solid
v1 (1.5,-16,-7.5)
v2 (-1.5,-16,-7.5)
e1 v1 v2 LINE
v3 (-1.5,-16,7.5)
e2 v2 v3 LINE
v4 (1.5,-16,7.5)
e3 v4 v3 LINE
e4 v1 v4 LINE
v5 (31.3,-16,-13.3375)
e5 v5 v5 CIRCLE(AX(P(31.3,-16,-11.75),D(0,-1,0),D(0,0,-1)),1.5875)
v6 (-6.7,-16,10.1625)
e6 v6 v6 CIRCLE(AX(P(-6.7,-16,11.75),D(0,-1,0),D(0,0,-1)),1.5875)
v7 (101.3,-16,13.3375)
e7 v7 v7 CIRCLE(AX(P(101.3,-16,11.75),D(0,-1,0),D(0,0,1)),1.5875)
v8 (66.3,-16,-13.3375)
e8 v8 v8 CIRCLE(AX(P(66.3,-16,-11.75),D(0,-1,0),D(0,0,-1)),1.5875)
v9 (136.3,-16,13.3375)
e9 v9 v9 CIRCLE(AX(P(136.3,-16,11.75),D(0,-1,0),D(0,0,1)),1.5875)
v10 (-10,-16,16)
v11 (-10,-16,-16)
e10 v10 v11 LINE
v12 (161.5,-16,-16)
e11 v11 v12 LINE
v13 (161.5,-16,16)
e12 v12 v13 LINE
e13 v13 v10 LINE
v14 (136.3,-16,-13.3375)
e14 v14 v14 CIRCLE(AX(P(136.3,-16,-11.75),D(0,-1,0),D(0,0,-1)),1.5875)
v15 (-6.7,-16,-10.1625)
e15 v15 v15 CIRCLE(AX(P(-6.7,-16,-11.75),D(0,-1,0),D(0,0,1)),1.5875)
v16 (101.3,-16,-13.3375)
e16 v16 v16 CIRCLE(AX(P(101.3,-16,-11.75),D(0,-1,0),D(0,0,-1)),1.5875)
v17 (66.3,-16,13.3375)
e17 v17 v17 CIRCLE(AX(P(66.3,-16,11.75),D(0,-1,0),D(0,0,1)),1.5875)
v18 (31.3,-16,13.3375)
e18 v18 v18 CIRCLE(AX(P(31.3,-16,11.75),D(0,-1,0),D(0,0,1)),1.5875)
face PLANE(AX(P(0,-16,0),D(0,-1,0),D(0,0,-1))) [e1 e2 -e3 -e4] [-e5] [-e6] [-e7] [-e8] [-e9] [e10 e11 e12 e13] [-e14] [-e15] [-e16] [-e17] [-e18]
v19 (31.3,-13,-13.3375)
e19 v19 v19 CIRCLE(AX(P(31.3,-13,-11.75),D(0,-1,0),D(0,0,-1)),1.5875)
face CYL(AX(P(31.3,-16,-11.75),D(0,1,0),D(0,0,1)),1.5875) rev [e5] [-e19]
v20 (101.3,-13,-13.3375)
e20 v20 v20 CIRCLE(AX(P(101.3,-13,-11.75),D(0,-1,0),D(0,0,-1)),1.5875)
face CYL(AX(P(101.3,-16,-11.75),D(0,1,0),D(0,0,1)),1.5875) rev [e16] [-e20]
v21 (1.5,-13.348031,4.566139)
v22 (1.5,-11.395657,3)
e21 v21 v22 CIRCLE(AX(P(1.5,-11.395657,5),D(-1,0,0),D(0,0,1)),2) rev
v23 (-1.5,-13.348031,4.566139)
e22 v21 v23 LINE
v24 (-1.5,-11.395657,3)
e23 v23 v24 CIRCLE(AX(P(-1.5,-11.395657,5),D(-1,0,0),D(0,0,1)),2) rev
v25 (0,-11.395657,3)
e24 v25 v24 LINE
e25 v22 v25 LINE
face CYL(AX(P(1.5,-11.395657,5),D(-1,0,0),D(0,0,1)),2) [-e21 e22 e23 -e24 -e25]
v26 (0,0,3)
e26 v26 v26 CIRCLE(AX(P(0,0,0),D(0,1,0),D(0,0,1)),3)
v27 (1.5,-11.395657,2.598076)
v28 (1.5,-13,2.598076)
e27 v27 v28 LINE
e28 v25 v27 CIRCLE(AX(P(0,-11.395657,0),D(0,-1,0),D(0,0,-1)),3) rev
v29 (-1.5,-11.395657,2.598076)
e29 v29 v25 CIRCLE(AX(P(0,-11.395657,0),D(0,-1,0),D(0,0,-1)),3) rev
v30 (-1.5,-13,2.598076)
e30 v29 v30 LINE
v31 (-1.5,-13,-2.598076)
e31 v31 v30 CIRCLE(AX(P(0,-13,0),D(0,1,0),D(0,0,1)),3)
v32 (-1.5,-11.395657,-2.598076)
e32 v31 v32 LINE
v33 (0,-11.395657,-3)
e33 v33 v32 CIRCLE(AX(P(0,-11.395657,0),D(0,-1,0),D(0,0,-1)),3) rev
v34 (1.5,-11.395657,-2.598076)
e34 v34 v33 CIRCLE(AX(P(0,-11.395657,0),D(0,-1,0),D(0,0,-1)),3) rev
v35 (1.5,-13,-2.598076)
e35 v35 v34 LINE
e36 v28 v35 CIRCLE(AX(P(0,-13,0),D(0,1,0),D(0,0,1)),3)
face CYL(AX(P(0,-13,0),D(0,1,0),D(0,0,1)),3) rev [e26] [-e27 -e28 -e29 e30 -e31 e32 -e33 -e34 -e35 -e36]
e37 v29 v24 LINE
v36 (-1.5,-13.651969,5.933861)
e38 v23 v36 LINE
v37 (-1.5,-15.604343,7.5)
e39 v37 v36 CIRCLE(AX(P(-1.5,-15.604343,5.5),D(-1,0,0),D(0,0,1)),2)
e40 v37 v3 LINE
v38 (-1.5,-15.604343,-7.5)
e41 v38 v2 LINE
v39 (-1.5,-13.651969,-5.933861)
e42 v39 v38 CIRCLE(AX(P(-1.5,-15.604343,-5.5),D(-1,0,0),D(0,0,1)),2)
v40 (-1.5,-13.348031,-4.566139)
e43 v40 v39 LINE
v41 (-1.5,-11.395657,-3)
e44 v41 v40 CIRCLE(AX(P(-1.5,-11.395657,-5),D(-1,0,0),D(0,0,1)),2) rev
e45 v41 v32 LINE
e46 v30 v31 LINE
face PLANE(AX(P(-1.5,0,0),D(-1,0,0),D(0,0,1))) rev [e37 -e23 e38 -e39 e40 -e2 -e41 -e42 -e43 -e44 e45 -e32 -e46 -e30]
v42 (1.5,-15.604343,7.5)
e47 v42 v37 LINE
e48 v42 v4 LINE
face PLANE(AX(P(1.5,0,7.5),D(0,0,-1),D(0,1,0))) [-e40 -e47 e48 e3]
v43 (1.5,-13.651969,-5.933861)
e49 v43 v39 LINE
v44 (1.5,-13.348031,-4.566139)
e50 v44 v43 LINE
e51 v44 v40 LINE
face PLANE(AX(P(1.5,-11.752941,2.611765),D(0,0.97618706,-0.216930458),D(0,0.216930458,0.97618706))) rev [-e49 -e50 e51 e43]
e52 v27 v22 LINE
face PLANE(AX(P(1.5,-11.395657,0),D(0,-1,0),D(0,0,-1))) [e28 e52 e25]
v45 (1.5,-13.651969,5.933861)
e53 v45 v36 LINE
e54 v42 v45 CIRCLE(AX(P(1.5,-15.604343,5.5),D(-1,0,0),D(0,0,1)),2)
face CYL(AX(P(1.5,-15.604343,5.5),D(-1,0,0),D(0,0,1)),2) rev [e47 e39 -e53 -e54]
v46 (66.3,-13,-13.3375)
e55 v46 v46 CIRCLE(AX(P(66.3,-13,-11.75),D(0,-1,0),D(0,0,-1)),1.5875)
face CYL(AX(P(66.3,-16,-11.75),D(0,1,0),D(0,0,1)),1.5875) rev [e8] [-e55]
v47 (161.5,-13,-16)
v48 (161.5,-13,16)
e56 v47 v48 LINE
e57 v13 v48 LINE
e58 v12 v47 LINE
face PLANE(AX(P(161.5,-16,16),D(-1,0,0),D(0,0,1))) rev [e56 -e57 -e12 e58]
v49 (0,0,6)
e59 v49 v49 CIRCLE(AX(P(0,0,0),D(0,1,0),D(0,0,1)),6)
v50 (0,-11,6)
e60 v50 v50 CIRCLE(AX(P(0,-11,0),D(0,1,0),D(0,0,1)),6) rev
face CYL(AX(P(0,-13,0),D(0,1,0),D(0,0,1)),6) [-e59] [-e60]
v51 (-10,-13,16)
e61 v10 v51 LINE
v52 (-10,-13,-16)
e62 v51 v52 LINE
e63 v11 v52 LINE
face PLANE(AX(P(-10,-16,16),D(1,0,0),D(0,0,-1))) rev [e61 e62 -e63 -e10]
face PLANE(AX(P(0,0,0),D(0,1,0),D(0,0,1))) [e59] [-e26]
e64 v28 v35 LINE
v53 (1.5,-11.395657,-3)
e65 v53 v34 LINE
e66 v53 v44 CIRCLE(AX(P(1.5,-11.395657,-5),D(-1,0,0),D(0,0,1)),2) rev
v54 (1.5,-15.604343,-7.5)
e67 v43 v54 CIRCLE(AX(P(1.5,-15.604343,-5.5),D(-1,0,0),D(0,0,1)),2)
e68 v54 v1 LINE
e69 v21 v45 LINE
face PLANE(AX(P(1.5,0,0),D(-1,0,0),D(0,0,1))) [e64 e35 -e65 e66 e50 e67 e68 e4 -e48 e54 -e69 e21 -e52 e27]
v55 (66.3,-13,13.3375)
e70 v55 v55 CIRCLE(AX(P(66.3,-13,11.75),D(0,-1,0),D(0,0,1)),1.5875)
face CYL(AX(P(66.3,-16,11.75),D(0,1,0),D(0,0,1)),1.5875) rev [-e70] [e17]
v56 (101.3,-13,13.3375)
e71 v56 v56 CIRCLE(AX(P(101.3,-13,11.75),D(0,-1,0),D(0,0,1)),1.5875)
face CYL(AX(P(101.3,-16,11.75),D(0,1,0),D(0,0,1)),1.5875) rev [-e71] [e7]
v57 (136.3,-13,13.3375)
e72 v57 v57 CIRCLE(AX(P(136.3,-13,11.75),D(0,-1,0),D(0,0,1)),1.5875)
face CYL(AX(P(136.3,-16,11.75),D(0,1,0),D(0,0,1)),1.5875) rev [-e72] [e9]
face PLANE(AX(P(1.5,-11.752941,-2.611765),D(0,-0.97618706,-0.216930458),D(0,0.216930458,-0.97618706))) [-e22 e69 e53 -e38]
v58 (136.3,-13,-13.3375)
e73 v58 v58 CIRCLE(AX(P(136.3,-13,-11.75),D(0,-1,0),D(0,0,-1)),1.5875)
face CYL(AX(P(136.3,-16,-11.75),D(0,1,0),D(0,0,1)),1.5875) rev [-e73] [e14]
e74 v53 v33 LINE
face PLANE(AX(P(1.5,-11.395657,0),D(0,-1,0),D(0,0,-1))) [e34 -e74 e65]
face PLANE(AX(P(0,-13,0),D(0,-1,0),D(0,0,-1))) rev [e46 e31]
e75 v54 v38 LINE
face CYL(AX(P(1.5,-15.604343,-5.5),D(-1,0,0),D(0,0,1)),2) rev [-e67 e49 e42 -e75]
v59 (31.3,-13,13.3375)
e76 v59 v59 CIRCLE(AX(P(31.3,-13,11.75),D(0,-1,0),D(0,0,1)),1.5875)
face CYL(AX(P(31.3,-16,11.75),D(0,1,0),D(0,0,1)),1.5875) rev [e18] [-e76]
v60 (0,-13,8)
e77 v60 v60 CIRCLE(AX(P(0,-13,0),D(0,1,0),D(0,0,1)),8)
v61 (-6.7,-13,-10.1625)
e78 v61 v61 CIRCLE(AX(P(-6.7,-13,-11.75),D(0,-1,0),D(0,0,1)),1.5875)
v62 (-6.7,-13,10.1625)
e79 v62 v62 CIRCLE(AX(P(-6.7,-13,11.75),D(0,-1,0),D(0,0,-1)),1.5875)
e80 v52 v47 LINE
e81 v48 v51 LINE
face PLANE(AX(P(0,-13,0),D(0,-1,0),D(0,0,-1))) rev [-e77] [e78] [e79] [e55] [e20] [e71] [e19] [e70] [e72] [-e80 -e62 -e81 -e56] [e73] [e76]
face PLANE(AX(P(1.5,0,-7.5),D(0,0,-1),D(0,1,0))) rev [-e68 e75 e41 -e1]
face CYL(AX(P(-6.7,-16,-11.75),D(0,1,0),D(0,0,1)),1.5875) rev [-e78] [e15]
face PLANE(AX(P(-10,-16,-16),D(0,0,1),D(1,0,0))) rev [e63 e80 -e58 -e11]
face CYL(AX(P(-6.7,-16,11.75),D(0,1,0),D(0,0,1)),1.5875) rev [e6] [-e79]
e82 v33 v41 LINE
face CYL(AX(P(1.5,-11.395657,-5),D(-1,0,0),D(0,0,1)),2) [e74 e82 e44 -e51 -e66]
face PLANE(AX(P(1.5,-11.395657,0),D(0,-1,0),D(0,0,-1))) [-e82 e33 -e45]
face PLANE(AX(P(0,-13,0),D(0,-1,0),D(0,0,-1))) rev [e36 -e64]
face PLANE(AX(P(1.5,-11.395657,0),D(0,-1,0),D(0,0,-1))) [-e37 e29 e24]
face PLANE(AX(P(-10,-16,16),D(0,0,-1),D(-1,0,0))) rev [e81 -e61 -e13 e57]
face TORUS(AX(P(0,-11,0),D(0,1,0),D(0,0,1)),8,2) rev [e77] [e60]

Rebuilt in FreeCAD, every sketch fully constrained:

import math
import FreeCAD as App
import Part
import Sketcher

V = App.Vector
Q = App.Units.Quantity


def add_polygon(sketch, points):
    """Adds a closed chain of lines whose ends are joined by coincident constraints."""
    first, n = sketch.GeometryCount, len(points)
    for a, b in zip(points, points[1:] + points[:1]):
        sketch.addGeometry(Part.LineSegment(App.Vector(*a, 0), App.Vector(*b, 0)), False)
    for i in range(n):
        sketch.addConstraint(Sketcher.Constraint("Coincident", first + i, 2, first + (i + 1) % n, 1))

doc = App.newDocument("Part")
body = doc.addObject("PartDesign::Body", "Body")

sketch1 = body.newObject("Sketcher::SketchObject", "Sketch")
sketch1.AttachmentSupport = (doc.getObject("XZ_Plane"), [""])
sketch1.MapMode = "FlatFace"
sketch1.addGeometry(Part.Circle(V(0, 0, 0), V(0, 0, 1), 6), False)
sketch1.addGeometry(Part.Circle(V(0, 0, 0), V(0, 0, 1), 3), False)
sketch1.addConstraint(Sketcher.Constraint("Coincident", 0, 3, -1, 1))
sketch1.addConstraint(Sketcher.Constraint("Coincident", 1, 3, -1, 1))
sketch1.addConstraint(Sketcher.Constraint("Diameter", 0, Q("12 mm")))
sketch1.addConstraint(Sketcher.Constraint("Diameter", 1, Q("6 mm")))
pad1 = body.newObject("PartDesign::Pad", "Pad")
pad1.Profile = sketch1
pad1.Length = 13
body2 = doc.addObject("PartDesign::Body", "Body001")

sketch2 = body2.newObject("Sketcher::SketchObject", "Sketch001")
sketch2.AttachmentSupport = (doc.getObject("XZ_Plane001"), [""])
sketch2.MapMode = "FlatFace"
sketch2.AttachmentOffset = App.Placement(V(0, 0, 13), App.Rotation())
add_polygon(sketch2, [(-10, 16), (-10, -16), (161.5, -16), (161.5, 16)])
sketch2.addGeometry(Part.Circle(V(-6.7, -11.8, 0), V(0, 0, 1), 1.6), False)
sketch2.addGeometry(Part.Circle(V(31.3, -11.8, 0), V(0, 0, 1), 1.6), False)
sketch2.addGeometry(Part.Circle(V(66.3, -11.8, 0), V(0, 0, 1), 1.6), False)
sketch2.addGeometry(Part.Circle(V(101.3, -11.8, 0), V(0, 0, 1), 1.6), False)
sketch2.addGeometry(Part.Circle(V(136.3, -11.8, 0), V(0, 0, 1), 1.6), False)
sketch2.addGeometry(Part.Circle(V(-6.7, 11.8, 0), V(0, 0, 1), 1.6), False)
sketch2.addGeometry(Part.Circle(V(31.3, 11.8, 0), V(0, 0, 1), 1.6), False)
sketch2.addGeometry(Part.Circle(V(66.3, 11.8, 0), V(0, 0, 1), 1.6), False)
sketch2.addGeometry(Part.Circle(V(101.3, 11.8, 0), V(0, 0, 1), 1.6), False)
sketch2.addGeometry(Part.Circle(V(136.3, 11.8, 0), V(0, 0, 1), 1.6), False)
sketch2.addConstraint(Sketcher.Constraint("Vertical", 0))
sketch2.addConstraint(Sketcher.Constraint("Horizontal", 1))
sketch2.addConstraint(Sketcher.Constraint("Vertical", 2))
sketch2.addConstraint(Sketcher.Constraint("Horizontal", 3))
sketch2.addConstraint(Sketcher.Constraint("Equal", 4, 5))
sketch2.addConstraint(Sketcher.Constraint("Equal", 5, 6))
sketch2.addConstraint(Sketcher.Constraint("Equal", 6, 7))
sketch2.addConstraint(Sketcher.Constraint("Equal", 7, 8))
sketch2.addConstraint(Sketcher.Constraint("Equal", 8, 9))
sketch2.addConstraint(Sketcher.Constraint("Equal", 9, 10))
sketch2.addConstraint(Sketcher.Constraint("Equal", 10, 11))
sketch2.addConstraint(Sketcher.Constraint("Equal", 11, 12))
sketch2.addConstraint(Sketcher.Constraint("Equal", 12, 13))
sketch2.addConstraint(Sketcher.Constraint("Symmetric", 4, 3, 9, 3, -1))
sketch2.addConstraint(Sketcher.Constraint("Symmetric", 5, 3, 10, 3, -1))
sketch2.addConstraint(Sketcher.Constraint("Symmetric", 6, 3, 11, 3, -1))
sketch2.addConstraint(Sketcher.Constraint("Symmetric", 7, 3, 12, 3, -1))
sketch2.addConstraint(Sketcher.Constraint("Symmetric", 8, 3, 13, 3, -1))
sketch2.addConstraint(Sketcher.Constraint("Horizontal", 4, 3, 5, 3))
sketch2.addConstraint(Sketcher.Constraint("Horizontal", 5, 3, 6, 3))
sketch2.addConstraint(Sketcher.Constraint("Horizontal", 6, 3, 7, 3))
sketch2.addConstraint(Sketcher.Constraint("Horizontal", 7, 3, 8, 3))
sketch2.addConstraint(Sketcher.Constraint("DistanceY", 0, 2, 0, 1, Q("32 mm")))
sketch2.addConstraint(Sketcher.Constraint("Diameter", 4, Q("3.175 mm")))
sketch2.addConstraint(Sketcher.Constraint("DistanceX", 1, 1, 1, 2, Q("171.5 mm")))
sketch2.addConstraint(Sketcher.Constraint("DistanceX", 0, 2, -1, 1, Q("10 mm")))
sketch2.addConstraint(Sketcher.Constraint("DistanceY", 0, 2, -1, 1, Q("16 mm")))
sketch2.addConstraint(Sketcher.Constraint("DistanceX", 4, 3, 5, 3, Q("38 mm")))
sketch2.addConstraint(Sketcher.Constraint("DistanceX", 5, 3, 6, 3, Q("35 mm")))
sketch2.addConstraint(Sketcher.Constraint("DistanceX", 6, 3, 7, 3, Q("35 mm")))
sketch2.addConstraint(Sketcher.Constraint("DistanceX", 7, 3, 8, 3, Q("35 mm")))
sketch2.addConstraint(Sketcher.Constraint("DistanceX", 4, 3, -1, 1, Q("6.7 mm")))
sketch2.addConstraint(Sketcher.Constraint("DistanceY", 4, 3, 9, 3, Q("23.5 mm")))
pad2 = body2.newObject("PartDesign::Pad", "Pad001")
pad2.Profile = sketch2
pad2.Length = 3
body3 = doc.addObject("PartDesign::Body", "Body002")

sketch3 = body3.newObject("Sketcher::SketchObject", "Sketch002")
sketch3.AttachmentSupport = (doc.getObject("YZ_Plane002"), [""])
sketch3.MapMode = "FlatFace"
sketch3.addGeometry(Part.ArcOfCircle(Part.Circle(V(-11.4, -5, 0), V(0, 0, 1), 2), math.radians(90), math.radians(167)), False)
sketch3.addGeometry(Part.LineSegment(V(-13.35, -4.57, 0), V(-13.65, -5.93, 0)), False)
sketch3.addGeometry(Part.ArcOfCircle(Part.Circle(V(-15.6, -5.5, 0), V(0, 0, 1), 2), math.radians(-90), math.radians(-13)), False)
sketch3.addGeometry(Part.LineSegment(V(-15.6, -7.5, 0), V(-16, -7.5, 0)), False)
sketch3.addGeometry(Part.LineSegment(V(-16, -7.5, 0), V(-16, 7.5, 0)), False)
sketch3.addGeometry(Part.LineSegment(V(-16, 7.5, 0), V(-15.6, 7.5, 0)), False)
sketch3.addGeometry(Part.ArcOfCircle(Part.Circle(V(-15.6, 5.5, 0), V(0, 0, 1), 2), math.radians(13), math.radians(90)), False)
sketch3.addGeometry(Part.LineSegment(V(-13.65, 5.93, 0), V(-13.35, 4.57, 0)), False)
sketch3.addGeometry(Part.ArcOfCircle(Part.Circle(V(-11.4, 5, 0), V(0, 0, 1), 2), math.radians(-167), math.radians(-90)), False)
sketch3.addGeometry(Part.LineSegment(V(-11.4, 3, 0), V(-11.4, -3, 0)), False)
sketch3.addConstraint(Sketcher.Constraint("Tangent", 0, 2, 1, 1))
sketch3.addConstraint(Sketcher.Constraint("Tangent", 1, 2, 2, 2))
sketch3.addConstraint(Sketcher.Constraint("Tangent", 2, 1, 3, 1))
sketch3.addConstraint(Sketcher.Constraint("Coincident", 3, 2, 4, 1))
sketch3.addConstraint(Sketcher.Constraint("Coincident", 4, 2, 5, 1))
sketch3.addConstraint(Sketcher.Constraint("Tangent", 5, 2, 6, 2))
sketch3.addConstraint(Sketcher.Constraint("Tangent", 6, 1, 7, 1))
sketch3.addConstraint(Sketcher.Constraint("Tangent", 7, 2, 8, 1))
sketch3.addConstraint(Sketcher.Constraint("Coincident", 8, 2, 9, 1))
sketch3.addConstraint(Sketcher.Constraint("Coincident", 9, 2, 0, 1))
sketch3.addConstraint(Sketcher.Constraint("Horizontal", 3))
sketch3.addConstraint(Sketcher.Constraint("Vertical", 4))
sketch3.addConstraint(Sketcher.Constraint("Horizontal", 5))
sketch3.addConstraint(Sketcher.Constraint("Vertical", 9))
sketch3.addConstraint(Sketcher.Constraint("Equal", 0, 2))
sketch3.addConstraint(Sketcher.Constraint("Equal", 2, 6))
sketch3.addConstraint(Sketcher.Constraint("Equal", 6, 8))
sketch3.addConstraint(Sketcher.Constraint("Symmetric", 2, 3, 6, 3, -1))
sketch3.addConstraint(Sketcher.Constraint("Symmetric", 0, 3, 8, 3, -1))
sketch3.addConstraint(Sketcher.Constraint("Vertical", 0, 3, 8, 2))
sketch3.addConstraint(Sketcher.Constraint("Radius", 0, Q("2 mm")))
sketch3.addConstraint(Sketcher.Constraint("DistanceY", 4, 1, 4, 2, Q("15 mm")))
sketch3.addConstraint(Sketcher.Constraint("DistanceY", 9, 2, 9, 1, Q("6 mm")))
sketch3.addConstraint(Sketcher.Constraint("DistanceX", 3, 2, -1, 1, Q("16 mm")))
sketch3.addConstraint(Sketcher.Constraint("DistanceX", 3, 2, 3, 1, Q("0.395657 mm")))
sketch3.addConstraint(Sketcher.Constraint("DistanceX", 0, 2, -1, 1, Q("13.348031 mm")))
pad3 = body3.newObject("PartDesign::Pad", "Pad002")
pad3.Profile = sketch3
pad3.Length = 3
pad3.Midplane = True
doc.recompute()

body4 = doc.addObject("PartDesign::Body", "Body003")
body4.BaseFeature = body3
boolean = body.newObject("PartDesign::Boolean", "Boolean")
boolean.Type = "Cut"
boolean.addObjects([body4])
doc.recompute()

boolean2 = body2.newObject("PartDesign::Boolean", "Boolean001")
boolean2.Type = "Cut"
boolean2.addObjects([body3])
doc.recompute()

boolean3 = body.newObject("PartDesign::Boolean", "Boolean002")
boolean3.Type = "Fuse"
boolean3.addObjects([body2])

sketch4 = body.newObject("Sketcher::SketchObject", "Sketch003")
sketch4.AttachmentSupport = (doc.getObject("YZ_Plane"), [""])
sketch4.MapMode = "FlatFace"
sketch4.addGeometry(Part.LineSegment(V(-13, -8, 0), V(-13, -6, 0)), False)
sketch4.addGeometry(Part.LineSegment(V(-13, -6, 0), V(-11, -6, 0)), False)
sketch4.addGeometry(Part.ArcOfCircle(Part.Circle(V(-11, -8, 0), V(0, 0, 1), 2), math.radians(90), math.radians(180)), False)
sketch4.addConstraint(Sketcher.Constraint("Coincident", 0, 2, 1, 1))
sketch4.addConstraint(Sketcher.Constraint("Tangent", 1, 2, 2, 1))
sketch4.addConstraint(Sketcher.Constraint("Tangent", 2, 2, 0, 1))
sketch4.addConstraint(Sketcher.Constraint("Vertical", 0))
sketch4.addConstraint(Sketcher.Constraint("Horizontal", 1))
sketch4.addConstraint(Sketcher.Constraint("Radius", 2, Q("2 mm")))
sketch4.addConstraint(Sketcher.Constraint("DistanceX", 2, 3, -1, 1, Q("11 mm")))
sketch4.addConstraint(Sketcher.Constraint("DistanceY", 2, 3, -1, 1, Q("8 mm")))
revolution = body.newObject("PartDesign::Revolution", "Revolution")
revolution.Profile = sketch4
revolution.ReferenceAxis = (sketch4, ["H_Axis"])
revolution.Angle = 360

doc.recompute()
